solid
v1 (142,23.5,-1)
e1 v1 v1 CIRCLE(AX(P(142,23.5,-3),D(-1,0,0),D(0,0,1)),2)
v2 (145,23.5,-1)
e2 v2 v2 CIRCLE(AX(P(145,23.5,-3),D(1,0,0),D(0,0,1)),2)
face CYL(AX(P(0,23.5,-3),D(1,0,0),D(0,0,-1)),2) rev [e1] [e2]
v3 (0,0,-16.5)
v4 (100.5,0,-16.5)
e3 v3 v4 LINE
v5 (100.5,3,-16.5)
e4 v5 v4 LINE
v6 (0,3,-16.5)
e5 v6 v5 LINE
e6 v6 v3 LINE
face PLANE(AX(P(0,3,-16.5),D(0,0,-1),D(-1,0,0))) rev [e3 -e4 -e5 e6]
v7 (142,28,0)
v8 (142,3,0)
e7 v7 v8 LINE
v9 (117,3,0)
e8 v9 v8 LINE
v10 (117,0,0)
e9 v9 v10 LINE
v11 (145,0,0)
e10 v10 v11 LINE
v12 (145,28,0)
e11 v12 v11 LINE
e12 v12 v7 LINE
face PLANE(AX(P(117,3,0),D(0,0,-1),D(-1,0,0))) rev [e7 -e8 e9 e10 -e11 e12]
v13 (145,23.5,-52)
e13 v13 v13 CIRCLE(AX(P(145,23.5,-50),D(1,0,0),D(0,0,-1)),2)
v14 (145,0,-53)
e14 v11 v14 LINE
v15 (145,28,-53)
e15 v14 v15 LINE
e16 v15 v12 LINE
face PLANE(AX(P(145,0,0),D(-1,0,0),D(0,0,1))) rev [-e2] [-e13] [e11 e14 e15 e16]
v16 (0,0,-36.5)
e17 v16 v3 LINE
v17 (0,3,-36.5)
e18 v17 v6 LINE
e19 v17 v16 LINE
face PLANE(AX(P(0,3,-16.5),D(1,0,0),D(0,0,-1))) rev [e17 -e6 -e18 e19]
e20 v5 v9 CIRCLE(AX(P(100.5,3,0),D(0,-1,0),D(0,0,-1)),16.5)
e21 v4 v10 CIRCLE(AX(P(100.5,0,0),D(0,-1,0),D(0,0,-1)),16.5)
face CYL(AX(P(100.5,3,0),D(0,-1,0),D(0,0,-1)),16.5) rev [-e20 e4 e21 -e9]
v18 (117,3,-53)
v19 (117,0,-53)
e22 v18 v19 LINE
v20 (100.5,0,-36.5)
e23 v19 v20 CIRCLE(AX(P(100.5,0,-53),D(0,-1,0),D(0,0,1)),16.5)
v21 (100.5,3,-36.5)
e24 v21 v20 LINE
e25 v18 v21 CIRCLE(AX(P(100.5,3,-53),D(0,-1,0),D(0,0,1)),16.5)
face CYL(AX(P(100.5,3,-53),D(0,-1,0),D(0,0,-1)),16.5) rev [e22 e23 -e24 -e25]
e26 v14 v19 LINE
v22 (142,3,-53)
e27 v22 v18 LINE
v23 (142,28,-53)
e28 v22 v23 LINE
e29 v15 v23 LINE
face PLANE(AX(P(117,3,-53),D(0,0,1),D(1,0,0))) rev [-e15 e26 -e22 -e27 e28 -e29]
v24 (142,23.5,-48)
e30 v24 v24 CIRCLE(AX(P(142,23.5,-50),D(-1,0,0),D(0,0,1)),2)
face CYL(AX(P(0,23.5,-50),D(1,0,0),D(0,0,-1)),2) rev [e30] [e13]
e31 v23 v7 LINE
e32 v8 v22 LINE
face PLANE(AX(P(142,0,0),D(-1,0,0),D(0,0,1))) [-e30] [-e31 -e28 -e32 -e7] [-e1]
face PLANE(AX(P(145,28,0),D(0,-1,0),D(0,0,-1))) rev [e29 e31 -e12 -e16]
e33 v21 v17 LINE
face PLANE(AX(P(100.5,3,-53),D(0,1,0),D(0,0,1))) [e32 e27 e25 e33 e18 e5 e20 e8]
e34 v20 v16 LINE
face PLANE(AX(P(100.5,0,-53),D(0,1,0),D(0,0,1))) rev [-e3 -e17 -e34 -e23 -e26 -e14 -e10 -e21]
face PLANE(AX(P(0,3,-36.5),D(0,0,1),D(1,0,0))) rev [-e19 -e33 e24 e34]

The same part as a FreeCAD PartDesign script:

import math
import FreeCAD as App
import Part
import Sketcher
from FreeCAD import Vector


def add_polygon(sketch, points):
    """Adds a closed chain of lines whose ends are joined by coincident constraints."""
    first, n = sketch.GeometryCount, len(points)
    for a, b in zip(points, points[1:] + points[:1]):
        sketch.addGeometry(Part.LineSegment(App.Vector(*a, 0), App.Vector(*b, 0)), False)
    for i in range(n):
        sketch.addConstraint(Sketcher.Constraint("Coincident", first + i, 2, first + (i + 1) % n, 1))

doc = App.newDocument("Part")
body = doc.addObject("PartDesign::Body", "Body")

# Sketch on XZ plane
sketch1 = body.newObject("Sketcher::SketchObject", "Sketch")
sketch1.AttachmentSupport = (doc.getObject("XZ_Plane"), [""])
sketch1.MapMode = "FlatFace"
sketch1.addGeometry([
    Part.LineSegment(Vector(117, 0, 0), Vector(142, 0, 0)),  # 0
    Part.LineSegment(Vector(142, 0, 0), Vector(142, -53, 0)),  # 1
    Part.LineSegment(Vector(142, -53, 0), Vector(117, -53, 0)),  # 2
    Part.ArcOfCircle(Part.Circle(Vector(101, -53, 0), Vector(0, 0, 1), 16), math.radians(0), math.radians(90)),  # 3
    Part.LineSegment(Vector(100, -36, 0), Vector(0, -36, 0)),  # 4
    Part.LineSegment(Vector(0, -36, 0), Vector(0, -16, 0)),  # 5
    Part.LineSegment(Vector(0, -16, 0), Vector(100, -16, 0)),  # 6
    Part.ArcOfCircle(Part.Circle(Vector(101, 0, 0), Vector(0, 0, 1), 16), math.radians(-90), math.radians(0)),  # 7
], False)
sketch1.addConstraint([
    Sketcher.Constraint("Coincident", 0, 2, 1, 1),
    Sketcher.Constraint("Coincident", 1, 2, 2, 1),
    Sketcher.Constraint("Coincident", 2, 2, 3, 1),
    Sketcher.Constraint("Tangent", 3, 2, 4, 1),
    Sketcher.Constraint("Coincident", 4, 2, 5, 1),
    Sketcher.Constraint("Coincident", 5, 2, 6, 1),
    Sketcher.Constraint("Tangent", 6, 2, 7, 1),
    Sketcher.Constraint("Coincident", 7, 2, 0, 1),
    Sketcher.Constraint("Horizontal", 0),
    Sketcher.Constraint("Vertical", 1),
    Sketcher.Constraint("Horizontal", 2),
    Sketcher.Constraint("Horizontal", 4),
    Sketcher.Constraint("Vertical", 5),
    Sketcher.Constraint("Horizontal", 6),
    Sketcher.Constraint("Equal", 3, 7),
    Sketcher.Constraint("PointOnObject", 7, 3, -1),
    Sketcher.Constraint("PointOnObject", 0, 2, -1),
    Sketcher.Constraint("PointOnObject", 4, 2, -2),
    Sketcher.Constraint("Horizontal", 3, 3, 1, 2),
    Sketcher.Constraint("Vertical", 3, 3, 7, 3),
    Sketcher.Constraint("Radius", 3, 16.5),
    Sketcher.Constraint("DistanceX", 0, 1, 0, 2, 25.0),
    Sketcher.Constraint("DistanceY", 1, 2, 1, 1, 53.0),
    Sketcher.Constraint("DistanceX", 4, 2, 4, 1, 100.5),
])
pad1 = body.newObject("PartDesign::Pad", "Pad")
pad1.Profile = sketch1
pad1.Length = 3
pad1.Reversed = True

# Sketch on YZ plane
sketch2 = body.newObject("Sketcher::SketchObject", "Sketch001")
sketch2.AttachmentSupport = (doc.getObject("YZ_Plane"), [""])
sketch2.MapMode = "FlatFace"
sketch2.AttachmentOffset = App.Placement(Vector(0, 0, 142), App.Rotation())
add_polygon(sketch2, [(28, 0), (0, 0), (0, -53), (28, -53)])  # lines 0-3
sketch2.addConstraint([
    Sketcher.Constraint("Horizontal", 0),
    Sketcher.Constraint("Vertical", 1),
    Sketcher.Constraint("Horizontal", 2),
    Sketcher.Constraint("Vertical", 3),
    Sketcher.Constraint("Coincident", 0, 2, -1, 1),
    Sketcher.Constraint("DistanceX", 0, 2, 0, 1, 28.0),
    Sketcher.Constraint("DistanceY", 1, 2, 1, 1, 53.0),
])
pad2 = body.newObject("PartDesign::Pad", "Pad001")
pad2.Profile = sketch2
pad2.Length = 3

# Sketch on YZ plane
sketch3 = body.newObject("Sketcher::SketchObject", "Sketch002")
sketch3.AttachmentSupport = (doc.getObject("YZ_Plane"), [""])
sketch3.MapMode = "FlatFace"
sketch3.AttachmentOffset = App.Placement(Vector(0, 0, 145), App.Rotation())
sketch3.addGeometry([
    Part.Circle(Vector(23.5, -50, 0), Vector(0, 0, 1), 2),
    Part.Circle(Vector(23.5, -3, 0), Vector(0, 0, 1), 2),
], False)
sketch3.addConstraint([
    Sketcher.Constraint("Equal", 0, 1),
    Sketcher.Constraint("Vertical", 0, 3, 1, 3),
    Sketcher.Constraint("Diameter", 0, 4.0),
    Sketcher.Constraint("DistanceY", 0, 3, -1, 1, 50.0),
    Sketcher.Constraint("DistanceY", 1, 3, -1, 1, 3.0),
    Sketcher.Constraint("DistanceX", -1, 1, 0, 3, 23.5),
])
pocket1 = body.newObject("PartDesign::Pocket", "Pocket")
pocket1.Profile = sketch3
pocket1.Type = "ThroughAll"

doc.recompute()
